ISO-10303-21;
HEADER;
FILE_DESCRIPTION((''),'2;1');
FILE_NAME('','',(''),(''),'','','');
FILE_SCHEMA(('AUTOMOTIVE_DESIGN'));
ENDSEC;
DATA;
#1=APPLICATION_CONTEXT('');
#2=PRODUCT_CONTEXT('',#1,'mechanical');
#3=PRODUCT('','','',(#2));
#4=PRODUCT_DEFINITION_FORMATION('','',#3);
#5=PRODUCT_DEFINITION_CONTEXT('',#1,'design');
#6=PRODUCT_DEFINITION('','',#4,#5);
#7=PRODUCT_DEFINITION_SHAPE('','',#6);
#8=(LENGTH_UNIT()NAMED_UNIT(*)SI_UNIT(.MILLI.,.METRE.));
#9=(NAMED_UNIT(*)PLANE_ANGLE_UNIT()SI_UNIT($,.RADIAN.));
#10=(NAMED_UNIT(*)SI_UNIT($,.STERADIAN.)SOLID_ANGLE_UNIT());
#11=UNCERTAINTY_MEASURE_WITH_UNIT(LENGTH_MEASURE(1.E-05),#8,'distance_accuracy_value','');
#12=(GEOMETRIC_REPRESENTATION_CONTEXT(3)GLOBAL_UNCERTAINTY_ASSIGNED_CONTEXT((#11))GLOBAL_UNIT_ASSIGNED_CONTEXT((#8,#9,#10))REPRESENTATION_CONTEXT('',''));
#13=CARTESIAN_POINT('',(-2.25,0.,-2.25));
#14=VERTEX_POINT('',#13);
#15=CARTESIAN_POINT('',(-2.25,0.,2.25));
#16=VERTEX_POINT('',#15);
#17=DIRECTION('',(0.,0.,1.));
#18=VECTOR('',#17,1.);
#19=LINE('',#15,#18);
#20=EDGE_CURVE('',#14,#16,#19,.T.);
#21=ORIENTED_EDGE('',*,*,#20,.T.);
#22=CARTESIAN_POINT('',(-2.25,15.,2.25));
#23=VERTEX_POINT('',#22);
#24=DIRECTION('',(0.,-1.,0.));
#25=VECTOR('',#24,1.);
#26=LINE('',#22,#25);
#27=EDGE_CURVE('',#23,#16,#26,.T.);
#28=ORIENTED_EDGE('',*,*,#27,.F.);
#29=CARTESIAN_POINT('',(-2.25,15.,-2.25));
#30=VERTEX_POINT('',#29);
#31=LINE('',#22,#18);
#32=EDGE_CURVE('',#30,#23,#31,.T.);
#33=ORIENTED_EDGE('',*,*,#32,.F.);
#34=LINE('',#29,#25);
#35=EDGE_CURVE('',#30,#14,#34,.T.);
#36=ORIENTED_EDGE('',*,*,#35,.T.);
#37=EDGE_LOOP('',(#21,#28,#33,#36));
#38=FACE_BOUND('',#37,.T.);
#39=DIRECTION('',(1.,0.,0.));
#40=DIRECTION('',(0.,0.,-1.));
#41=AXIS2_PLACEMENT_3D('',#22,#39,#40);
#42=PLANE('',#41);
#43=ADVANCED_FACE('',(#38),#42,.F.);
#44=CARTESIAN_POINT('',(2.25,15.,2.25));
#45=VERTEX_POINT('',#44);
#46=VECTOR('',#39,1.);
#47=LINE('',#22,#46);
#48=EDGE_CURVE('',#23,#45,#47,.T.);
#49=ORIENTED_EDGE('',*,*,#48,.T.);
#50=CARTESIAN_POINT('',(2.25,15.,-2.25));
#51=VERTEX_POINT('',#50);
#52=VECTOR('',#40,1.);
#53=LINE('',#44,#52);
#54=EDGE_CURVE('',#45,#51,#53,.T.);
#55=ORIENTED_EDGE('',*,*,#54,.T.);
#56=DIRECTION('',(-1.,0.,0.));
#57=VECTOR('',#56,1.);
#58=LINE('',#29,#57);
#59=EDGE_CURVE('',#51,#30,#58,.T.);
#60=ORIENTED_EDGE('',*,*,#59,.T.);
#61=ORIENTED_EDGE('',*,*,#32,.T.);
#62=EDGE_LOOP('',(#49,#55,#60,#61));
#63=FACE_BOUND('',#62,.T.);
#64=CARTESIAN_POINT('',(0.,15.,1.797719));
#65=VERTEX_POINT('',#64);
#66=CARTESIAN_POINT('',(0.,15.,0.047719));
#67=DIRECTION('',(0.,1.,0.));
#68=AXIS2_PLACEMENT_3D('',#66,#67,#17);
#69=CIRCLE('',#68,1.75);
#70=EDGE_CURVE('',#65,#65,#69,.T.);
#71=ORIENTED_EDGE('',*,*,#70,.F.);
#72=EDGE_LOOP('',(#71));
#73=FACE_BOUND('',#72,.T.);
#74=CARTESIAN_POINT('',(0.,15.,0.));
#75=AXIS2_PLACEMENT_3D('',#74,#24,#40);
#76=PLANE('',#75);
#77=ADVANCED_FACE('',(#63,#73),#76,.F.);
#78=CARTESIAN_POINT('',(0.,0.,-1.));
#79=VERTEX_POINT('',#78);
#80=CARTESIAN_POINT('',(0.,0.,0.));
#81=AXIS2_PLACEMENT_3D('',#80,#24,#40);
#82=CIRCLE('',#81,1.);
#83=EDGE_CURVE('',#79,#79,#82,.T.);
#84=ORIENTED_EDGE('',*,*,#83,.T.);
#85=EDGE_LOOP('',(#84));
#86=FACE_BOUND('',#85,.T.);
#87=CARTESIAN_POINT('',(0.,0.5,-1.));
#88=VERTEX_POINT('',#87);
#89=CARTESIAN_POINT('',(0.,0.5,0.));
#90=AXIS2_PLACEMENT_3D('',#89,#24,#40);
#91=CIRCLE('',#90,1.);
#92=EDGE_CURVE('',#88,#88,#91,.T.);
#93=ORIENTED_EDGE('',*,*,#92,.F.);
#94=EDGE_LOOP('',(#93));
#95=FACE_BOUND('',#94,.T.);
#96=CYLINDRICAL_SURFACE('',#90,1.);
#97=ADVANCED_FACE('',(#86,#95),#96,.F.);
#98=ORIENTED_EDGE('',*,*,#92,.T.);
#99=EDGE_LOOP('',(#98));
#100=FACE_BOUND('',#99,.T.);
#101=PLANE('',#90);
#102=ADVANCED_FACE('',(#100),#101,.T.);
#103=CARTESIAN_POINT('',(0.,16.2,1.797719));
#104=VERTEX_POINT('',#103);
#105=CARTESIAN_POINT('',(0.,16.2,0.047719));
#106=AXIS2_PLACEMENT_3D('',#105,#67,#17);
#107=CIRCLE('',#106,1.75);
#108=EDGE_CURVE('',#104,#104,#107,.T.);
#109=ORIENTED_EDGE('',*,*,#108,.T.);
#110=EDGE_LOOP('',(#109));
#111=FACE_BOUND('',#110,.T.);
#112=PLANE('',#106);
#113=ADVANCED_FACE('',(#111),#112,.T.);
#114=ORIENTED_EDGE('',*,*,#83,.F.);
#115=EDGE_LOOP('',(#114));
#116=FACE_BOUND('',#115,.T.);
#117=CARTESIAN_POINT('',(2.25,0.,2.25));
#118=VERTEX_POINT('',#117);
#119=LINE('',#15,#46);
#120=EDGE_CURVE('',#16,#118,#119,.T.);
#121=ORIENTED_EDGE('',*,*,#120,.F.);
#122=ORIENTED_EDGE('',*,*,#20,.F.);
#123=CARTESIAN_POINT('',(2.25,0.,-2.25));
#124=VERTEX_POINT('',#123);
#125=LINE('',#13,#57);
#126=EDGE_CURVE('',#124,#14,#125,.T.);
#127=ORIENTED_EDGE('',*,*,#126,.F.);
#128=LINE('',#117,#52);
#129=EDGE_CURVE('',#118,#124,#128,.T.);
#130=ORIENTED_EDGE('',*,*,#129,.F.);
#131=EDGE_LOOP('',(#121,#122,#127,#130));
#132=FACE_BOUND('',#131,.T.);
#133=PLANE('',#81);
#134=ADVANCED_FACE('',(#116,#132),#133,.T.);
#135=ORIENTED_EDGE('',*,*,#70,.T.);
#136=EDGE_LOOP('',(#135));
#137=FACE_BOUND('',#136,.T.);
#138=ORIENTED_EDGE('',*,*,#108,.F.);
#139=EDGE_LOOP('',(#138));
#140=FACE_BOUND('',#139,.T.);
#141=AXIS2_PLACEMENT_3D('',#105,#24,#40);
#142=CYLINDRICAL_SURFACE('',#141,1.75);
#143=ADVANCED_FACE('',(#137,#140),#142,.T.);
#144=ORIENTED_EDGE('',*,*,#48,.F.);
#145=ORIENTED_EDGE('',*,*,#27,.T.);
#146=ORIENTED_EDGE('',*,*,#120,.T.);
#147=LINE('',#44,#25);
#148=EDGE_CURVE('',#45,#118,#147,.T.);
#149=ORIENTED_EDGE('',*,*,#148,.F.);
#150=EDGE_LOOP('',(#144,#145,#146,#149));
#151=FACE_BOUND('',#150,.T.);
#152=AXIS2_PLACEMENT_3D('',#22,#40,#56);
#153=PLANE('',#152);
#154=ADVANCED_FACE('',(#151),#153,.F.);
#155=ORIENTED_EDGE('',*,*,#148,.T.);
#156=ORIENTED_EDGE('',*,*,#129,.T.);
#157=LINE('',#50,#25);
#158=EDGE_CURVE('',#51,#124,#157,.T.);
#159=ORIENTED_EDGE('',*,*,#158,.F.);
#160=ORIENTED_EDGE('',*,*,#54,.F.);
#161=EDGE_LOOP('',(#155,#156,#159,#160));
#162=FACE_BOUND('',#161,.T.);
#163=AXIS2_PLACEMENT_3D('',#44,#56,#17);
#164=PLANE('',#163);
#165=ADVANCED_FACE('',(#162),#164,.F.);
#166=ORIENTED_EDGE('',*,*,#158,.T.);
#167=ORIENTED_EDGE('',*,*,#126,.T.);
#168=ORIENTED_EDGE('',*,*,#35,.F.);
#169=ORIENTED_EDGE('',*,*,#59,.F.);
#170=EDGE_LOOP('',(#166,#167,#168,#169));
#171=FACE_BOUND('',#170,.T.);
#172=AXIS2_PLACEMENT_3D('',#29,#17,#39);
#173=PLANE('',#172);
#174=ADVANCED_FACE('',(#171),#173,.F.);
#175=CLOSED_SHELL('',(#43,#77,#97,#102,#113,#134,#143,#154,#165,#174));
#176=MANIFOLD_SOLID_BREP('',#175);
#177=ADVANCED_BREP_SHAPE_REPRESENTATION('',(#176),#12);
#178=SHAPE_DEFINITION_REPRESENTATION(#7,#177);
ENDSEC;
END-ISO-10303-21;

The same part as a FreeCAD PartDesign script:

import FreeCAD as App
import Part
import Sketcher

doc = App.newDocument("Part")
body = doc.addObject("PartDesign::Body", "Body")

# Sketch on XZ plane
sketch1 = doc.addObject("Sketcher::SketchObject", "Sketch")
body.addObject(sketch1)
sketch1.AttachmentSupport = (doc.XZ_Plane, [""])
sketch1.MapMode = "FlatFace"
sketch1.addGeometry([
    Part.LineSegment(App.Vector(-2.25, -2.25, 0), App.Vector(-2.25, 2.25, 0)),
    Part.LineSegment(App.Vector(-2.25, 2.25, 0), App.Vector(2.25, 2.25, 0)),
    Part.LineSegment(App.Vector(2.25, 2.25, 0), App.Vector(2.25, -2.25, 0)),
    Part.LineSegment(App.Vector(2.25, -2.25, 0), App.Vector(-2.25, -2.25, 0)),
], False)
sketch1.addConstraint([
    Sketcher.Constraint("Coincident", 0, 2, 1, 1),
    Sketcher.Constraint("Coincident", 1, 2, 2, 1),
    Sketcher.Constraint("Coincident", 2, 2, 3, 1),
    Sketcher.Constraint("Coincident", 3, 2, 0, 1),
    Sketcher.Constraint("Vertical", 0),
    Sketcher.Constraint("Horizontal", 1),
    Sketcher.Constraint("Vertical", 2),
    Sketcher.Constraint("Horizontal", 3),
    Sketcher.Constraint("Symmetric", 0, 2, 2, 2, -1, 1),
    Sketcher.Constraint("Equal", 3, 0),
    Sketcher.Constraint("DistanceX", 1, 1, 1, 2, 4.5),
])
pad1 = doc.addObject("PartDesign::Pad", "Pad")
body.addObject(pad1)
pad1.Profile = sketch1
pad1.Length = 15
pad1.Reversed = True

# Sketch on XZ plane
sketch2 = doc.addObject("Sketcher::SketchObject", "Sketch001")
body.addObject(sketch2)
sketch2.AttachmentSupport = (doc.XZ_Plane, [""])
sketch2.MapMode = "FlatFace"
sketch2.addGeometry(Part.Circle(App.Vector(0, 0, 0), App.Vector(0, 0, 1), 1), False)
sketch2.addConstraint([
    Sketcher.Constraint("Coincident", 0, 3, -1, 1),
    Sketcher.Constraint("Diameter", 0, 2.0),
])
pocket1 = doc.addObject("PartDesign::Pocket", "Pocket")
body.addObject(pocket1)
pocket1.Profile = sketch2
pocket1.Length = 0.5

# Sketch on XZ plane
sketch3 = doc.addObject("Sketcher::SketchObject", "Sketch002")
body.addObject(sketch3)
sketch3.AttachmentSupport = (doc.XZ_Plane, [""])
sketch3.MapMode = "FlatFace"
sketch3.AttachmentOffset = App.Placement(App.Vector(0, 0, -15), App.Rotation())
sketch3.addGeometry(Part.Circle(App.Vector(0, 0.047719, 0), App.Vector(0, 0, 1), 1.75), False)
sketch3.addConstraint([
    Sketcher.Constraint("PointOnObject", 0, 3, -2),
    Sketcher.Constraint("Diameter", 0, 3.5),
    Sketcher.Constraint("DistanceY", -1, 1, 0, 3, 0.047719),
])
pad2 = doc.addObject("PartDesign::Pad", "Pad001")
body.addObject(pad2)
pad2.Profile = sketch3
pad2.Length = 1.2
pad2.Reversed = True

doc.recompute()
